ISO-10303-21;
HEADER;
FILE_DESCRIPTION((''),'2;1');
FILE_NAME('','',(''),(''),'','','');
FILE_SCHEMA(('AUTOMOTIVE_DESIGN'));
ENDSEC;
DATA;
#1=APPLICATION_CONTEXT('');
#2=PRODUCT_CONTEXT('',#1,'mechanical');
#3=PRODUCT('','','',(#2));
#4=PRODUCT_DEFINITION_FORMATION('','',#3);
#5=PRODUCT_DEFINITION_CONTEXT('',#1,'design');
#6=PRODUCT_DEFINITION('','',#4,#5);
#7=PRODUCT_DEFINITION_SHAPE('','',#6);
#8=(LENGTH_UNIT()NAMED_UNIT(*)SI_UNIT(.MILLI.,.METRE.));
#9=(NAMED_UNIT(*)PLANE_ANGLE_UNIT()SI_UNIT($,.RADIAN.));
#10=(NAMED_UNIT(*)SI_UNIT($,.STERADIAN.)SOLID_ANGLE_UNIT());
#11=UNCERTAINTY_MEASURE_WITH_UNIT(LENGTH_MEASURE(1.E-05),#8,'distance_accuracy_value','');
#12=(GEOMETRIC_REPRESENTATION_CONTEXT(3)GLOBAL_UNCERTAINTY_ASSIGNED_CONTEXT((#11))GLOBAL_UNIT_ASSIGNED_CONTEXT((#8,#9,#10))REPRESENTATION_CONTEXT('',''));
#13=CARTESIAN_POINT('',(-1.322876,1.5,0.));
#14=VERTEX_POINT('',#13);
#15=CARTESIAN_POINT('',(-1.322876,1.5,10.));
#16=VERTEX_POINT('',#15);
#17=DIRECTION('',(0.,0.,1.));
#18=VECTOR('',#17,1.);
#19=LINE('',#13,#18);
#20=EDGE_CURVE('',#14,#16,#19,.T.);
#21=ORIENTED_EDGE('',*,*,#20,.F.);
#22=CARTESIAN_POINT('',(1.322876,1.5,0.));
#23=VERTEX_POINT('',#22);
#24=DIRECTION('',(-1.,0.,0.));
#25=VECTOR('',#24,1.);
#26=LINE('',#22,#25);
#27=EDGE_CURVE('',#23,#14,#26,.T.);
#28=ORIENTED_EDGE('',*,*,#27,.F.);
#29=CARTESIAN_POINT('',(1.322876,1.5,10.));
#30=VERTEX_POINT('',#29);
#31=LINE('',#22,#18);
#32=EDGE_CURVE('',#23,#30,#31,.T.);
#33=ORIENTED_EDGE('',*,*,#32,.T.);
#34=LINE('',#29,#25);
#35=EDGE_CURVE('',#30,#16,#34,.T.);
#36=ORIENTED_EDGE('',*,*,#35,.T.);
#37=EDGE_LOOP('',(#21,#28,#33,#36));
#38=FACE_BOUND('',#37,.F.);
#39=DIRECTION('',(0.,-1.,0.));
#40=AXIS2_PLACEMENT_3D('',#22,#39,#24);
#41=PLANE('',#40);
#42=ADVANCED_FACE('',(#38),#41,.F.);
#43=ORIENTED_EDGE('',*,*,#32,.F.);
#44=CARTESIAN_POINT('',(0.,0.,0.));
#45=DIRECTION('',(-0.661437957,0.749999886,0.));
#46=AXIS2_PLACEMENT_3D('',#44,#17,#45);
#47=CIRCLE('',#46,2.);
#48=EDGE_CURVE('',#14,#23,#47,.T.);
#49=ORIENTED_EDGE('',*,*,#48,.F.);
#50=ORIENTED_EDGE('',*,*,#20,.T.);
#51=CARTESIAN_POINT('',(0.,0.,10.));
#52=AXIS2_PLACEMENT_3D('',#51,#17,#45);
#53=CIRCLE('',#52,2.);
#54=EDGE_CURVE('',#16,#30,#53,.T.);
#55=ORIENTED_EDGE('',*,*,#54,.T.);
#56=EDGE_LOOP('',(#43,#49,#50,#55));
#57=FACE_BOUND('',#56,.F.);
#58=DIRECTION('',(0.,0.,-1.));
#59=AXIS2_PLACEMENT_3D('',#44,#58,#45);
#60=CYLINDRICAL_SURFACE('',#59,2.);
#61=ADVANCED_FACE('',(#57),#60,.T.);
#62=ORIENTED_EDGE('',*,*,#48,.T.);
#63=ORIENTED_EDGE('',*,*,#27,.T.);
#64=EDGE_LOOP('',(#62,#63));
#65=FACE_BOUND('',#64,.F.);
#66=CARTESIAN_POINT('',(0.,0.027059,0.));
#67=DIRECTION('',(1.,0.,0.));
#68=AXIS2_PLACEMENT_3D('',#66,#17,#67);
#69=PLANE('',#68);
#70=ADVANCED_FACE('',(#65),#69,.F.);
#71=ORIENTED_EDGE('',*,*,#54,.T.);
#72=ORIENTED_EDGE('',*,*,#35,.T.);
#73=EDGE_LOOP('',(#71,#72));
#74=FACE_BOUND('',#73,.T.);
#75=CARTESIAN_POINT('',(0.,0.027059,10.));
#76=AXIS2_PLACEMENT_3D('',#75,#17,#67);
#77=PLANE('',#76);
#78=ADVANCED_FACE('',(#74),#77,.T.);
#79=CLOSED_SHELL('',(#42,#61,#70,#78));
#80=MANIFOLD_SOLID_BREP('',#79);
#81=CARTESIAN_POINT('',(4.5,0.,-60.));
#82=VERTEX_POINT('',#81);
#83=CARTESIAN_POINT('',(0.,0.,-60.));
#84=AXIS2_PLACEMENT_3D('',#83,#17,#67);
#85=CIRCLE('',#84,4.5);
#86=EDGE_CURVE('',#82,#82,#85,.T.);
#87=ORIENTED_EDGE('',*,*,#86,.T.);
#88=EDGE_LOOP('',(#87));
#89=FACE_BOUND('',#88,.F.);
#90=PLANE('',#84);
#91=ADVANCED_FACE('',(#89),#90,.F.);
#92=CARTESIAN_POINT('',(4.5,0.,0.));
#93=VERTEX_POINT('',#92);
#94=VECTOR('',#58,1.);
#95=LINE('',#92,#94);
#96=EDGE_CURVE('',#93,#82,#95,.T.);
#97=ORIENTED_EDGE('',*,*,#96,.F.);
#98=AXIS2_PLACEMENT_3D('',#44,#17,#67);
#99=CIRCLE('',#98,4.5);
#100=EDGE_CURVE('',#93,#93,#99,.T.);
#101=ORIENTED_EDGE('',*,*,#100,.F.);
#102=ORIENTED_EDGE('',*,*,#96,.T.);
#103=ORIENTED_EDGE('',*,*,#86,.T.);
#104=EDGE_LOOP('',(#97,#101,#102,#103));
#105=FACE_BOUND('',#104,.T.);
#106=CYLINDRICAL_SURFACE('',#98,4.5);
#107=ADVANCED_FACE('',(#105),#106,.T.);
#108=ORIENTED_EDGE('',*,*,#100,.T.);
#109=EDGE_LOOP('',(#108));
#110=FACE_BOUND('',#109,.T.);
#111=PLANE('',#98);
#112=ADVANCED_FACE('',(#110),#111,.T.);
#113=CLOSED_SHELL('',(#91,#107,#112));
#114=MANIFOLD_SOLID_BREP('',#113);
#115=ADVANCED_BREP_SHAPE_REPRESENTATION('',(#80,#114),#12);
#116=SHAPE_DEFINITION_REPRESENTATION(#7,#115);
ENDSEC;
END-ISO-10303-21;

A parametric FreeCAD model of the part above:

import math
import FreeCAD as App
import Part
import Sketcher

doc = App.newDocument("Part")
body = doc.addObject("PartDesign::Body", "Body")

sketch1 = body.newObject("Sketcher::SketchObject", "Sketch")
sketch1.AttachmentSupport = (doc.getObject("XY_Plane"), [""])
sketch1.MapMode = "FlatFace"
sketch1.addGeometry(Part.Circle(App.Vector(0, 0, 0), App.Vector(0, 0, 1), 4.5), False)
sketch1.addConstraint([
    Sketcher.Constraint("Coincident", 0, 3, -1, 1),
    Sketcher.Constraint("Diameter", 0, 9.0),
])
pad1 = body.newObject("PartDesign::Pad", "Pad")
pad1.Profile = sketch1
pad1.Length = 60
pad1.Reversed = True
body2 = doc.addObject("PartDesign::Body", "Body001")

sketch2 = body2.newObject("Sketcher::SketchObject", "Sketch001")
sketch2.AttachmentSupport = (doc.getObject("XY_Plane001"), [""])
sketch2.MapMode = "FlatFace"
sketch2.addGeometry([
    Part.LineSegment(App.Vector(1.322876, 1.5, 0), App.Vector(-1.322876, 1.5, 0)),
    Part.ArcOfCircle(Part.Circle(App.Vector(0, 0, 0), App.Vector(0, 0, 1), 2), math.radians(131.409632), math.radians(408.590368)),
], False)
sketch2.addConstraint([
    Sketcher.Constraint("Coincident", 0, 1, 1, 2),
    Sketcher.Constraint("Coincident", 1, 1, 0, 2),
    Sketcher.Constraint("Horizontal", 0),
    Sketcher.Constraint("Coincident", 1, 3, -1, 1),
    Sketcher.Constraint("Radius", 1, 2.0),
    Sketcher.Constraint("DistanceY", -1, 1, 0, 1, 1.5),
])
pad2 = body2.newObject("PartDesign::Pad", "Pad001")
pad2.Profile = sketch2
pad2.Length = 10

doc.recompute()
